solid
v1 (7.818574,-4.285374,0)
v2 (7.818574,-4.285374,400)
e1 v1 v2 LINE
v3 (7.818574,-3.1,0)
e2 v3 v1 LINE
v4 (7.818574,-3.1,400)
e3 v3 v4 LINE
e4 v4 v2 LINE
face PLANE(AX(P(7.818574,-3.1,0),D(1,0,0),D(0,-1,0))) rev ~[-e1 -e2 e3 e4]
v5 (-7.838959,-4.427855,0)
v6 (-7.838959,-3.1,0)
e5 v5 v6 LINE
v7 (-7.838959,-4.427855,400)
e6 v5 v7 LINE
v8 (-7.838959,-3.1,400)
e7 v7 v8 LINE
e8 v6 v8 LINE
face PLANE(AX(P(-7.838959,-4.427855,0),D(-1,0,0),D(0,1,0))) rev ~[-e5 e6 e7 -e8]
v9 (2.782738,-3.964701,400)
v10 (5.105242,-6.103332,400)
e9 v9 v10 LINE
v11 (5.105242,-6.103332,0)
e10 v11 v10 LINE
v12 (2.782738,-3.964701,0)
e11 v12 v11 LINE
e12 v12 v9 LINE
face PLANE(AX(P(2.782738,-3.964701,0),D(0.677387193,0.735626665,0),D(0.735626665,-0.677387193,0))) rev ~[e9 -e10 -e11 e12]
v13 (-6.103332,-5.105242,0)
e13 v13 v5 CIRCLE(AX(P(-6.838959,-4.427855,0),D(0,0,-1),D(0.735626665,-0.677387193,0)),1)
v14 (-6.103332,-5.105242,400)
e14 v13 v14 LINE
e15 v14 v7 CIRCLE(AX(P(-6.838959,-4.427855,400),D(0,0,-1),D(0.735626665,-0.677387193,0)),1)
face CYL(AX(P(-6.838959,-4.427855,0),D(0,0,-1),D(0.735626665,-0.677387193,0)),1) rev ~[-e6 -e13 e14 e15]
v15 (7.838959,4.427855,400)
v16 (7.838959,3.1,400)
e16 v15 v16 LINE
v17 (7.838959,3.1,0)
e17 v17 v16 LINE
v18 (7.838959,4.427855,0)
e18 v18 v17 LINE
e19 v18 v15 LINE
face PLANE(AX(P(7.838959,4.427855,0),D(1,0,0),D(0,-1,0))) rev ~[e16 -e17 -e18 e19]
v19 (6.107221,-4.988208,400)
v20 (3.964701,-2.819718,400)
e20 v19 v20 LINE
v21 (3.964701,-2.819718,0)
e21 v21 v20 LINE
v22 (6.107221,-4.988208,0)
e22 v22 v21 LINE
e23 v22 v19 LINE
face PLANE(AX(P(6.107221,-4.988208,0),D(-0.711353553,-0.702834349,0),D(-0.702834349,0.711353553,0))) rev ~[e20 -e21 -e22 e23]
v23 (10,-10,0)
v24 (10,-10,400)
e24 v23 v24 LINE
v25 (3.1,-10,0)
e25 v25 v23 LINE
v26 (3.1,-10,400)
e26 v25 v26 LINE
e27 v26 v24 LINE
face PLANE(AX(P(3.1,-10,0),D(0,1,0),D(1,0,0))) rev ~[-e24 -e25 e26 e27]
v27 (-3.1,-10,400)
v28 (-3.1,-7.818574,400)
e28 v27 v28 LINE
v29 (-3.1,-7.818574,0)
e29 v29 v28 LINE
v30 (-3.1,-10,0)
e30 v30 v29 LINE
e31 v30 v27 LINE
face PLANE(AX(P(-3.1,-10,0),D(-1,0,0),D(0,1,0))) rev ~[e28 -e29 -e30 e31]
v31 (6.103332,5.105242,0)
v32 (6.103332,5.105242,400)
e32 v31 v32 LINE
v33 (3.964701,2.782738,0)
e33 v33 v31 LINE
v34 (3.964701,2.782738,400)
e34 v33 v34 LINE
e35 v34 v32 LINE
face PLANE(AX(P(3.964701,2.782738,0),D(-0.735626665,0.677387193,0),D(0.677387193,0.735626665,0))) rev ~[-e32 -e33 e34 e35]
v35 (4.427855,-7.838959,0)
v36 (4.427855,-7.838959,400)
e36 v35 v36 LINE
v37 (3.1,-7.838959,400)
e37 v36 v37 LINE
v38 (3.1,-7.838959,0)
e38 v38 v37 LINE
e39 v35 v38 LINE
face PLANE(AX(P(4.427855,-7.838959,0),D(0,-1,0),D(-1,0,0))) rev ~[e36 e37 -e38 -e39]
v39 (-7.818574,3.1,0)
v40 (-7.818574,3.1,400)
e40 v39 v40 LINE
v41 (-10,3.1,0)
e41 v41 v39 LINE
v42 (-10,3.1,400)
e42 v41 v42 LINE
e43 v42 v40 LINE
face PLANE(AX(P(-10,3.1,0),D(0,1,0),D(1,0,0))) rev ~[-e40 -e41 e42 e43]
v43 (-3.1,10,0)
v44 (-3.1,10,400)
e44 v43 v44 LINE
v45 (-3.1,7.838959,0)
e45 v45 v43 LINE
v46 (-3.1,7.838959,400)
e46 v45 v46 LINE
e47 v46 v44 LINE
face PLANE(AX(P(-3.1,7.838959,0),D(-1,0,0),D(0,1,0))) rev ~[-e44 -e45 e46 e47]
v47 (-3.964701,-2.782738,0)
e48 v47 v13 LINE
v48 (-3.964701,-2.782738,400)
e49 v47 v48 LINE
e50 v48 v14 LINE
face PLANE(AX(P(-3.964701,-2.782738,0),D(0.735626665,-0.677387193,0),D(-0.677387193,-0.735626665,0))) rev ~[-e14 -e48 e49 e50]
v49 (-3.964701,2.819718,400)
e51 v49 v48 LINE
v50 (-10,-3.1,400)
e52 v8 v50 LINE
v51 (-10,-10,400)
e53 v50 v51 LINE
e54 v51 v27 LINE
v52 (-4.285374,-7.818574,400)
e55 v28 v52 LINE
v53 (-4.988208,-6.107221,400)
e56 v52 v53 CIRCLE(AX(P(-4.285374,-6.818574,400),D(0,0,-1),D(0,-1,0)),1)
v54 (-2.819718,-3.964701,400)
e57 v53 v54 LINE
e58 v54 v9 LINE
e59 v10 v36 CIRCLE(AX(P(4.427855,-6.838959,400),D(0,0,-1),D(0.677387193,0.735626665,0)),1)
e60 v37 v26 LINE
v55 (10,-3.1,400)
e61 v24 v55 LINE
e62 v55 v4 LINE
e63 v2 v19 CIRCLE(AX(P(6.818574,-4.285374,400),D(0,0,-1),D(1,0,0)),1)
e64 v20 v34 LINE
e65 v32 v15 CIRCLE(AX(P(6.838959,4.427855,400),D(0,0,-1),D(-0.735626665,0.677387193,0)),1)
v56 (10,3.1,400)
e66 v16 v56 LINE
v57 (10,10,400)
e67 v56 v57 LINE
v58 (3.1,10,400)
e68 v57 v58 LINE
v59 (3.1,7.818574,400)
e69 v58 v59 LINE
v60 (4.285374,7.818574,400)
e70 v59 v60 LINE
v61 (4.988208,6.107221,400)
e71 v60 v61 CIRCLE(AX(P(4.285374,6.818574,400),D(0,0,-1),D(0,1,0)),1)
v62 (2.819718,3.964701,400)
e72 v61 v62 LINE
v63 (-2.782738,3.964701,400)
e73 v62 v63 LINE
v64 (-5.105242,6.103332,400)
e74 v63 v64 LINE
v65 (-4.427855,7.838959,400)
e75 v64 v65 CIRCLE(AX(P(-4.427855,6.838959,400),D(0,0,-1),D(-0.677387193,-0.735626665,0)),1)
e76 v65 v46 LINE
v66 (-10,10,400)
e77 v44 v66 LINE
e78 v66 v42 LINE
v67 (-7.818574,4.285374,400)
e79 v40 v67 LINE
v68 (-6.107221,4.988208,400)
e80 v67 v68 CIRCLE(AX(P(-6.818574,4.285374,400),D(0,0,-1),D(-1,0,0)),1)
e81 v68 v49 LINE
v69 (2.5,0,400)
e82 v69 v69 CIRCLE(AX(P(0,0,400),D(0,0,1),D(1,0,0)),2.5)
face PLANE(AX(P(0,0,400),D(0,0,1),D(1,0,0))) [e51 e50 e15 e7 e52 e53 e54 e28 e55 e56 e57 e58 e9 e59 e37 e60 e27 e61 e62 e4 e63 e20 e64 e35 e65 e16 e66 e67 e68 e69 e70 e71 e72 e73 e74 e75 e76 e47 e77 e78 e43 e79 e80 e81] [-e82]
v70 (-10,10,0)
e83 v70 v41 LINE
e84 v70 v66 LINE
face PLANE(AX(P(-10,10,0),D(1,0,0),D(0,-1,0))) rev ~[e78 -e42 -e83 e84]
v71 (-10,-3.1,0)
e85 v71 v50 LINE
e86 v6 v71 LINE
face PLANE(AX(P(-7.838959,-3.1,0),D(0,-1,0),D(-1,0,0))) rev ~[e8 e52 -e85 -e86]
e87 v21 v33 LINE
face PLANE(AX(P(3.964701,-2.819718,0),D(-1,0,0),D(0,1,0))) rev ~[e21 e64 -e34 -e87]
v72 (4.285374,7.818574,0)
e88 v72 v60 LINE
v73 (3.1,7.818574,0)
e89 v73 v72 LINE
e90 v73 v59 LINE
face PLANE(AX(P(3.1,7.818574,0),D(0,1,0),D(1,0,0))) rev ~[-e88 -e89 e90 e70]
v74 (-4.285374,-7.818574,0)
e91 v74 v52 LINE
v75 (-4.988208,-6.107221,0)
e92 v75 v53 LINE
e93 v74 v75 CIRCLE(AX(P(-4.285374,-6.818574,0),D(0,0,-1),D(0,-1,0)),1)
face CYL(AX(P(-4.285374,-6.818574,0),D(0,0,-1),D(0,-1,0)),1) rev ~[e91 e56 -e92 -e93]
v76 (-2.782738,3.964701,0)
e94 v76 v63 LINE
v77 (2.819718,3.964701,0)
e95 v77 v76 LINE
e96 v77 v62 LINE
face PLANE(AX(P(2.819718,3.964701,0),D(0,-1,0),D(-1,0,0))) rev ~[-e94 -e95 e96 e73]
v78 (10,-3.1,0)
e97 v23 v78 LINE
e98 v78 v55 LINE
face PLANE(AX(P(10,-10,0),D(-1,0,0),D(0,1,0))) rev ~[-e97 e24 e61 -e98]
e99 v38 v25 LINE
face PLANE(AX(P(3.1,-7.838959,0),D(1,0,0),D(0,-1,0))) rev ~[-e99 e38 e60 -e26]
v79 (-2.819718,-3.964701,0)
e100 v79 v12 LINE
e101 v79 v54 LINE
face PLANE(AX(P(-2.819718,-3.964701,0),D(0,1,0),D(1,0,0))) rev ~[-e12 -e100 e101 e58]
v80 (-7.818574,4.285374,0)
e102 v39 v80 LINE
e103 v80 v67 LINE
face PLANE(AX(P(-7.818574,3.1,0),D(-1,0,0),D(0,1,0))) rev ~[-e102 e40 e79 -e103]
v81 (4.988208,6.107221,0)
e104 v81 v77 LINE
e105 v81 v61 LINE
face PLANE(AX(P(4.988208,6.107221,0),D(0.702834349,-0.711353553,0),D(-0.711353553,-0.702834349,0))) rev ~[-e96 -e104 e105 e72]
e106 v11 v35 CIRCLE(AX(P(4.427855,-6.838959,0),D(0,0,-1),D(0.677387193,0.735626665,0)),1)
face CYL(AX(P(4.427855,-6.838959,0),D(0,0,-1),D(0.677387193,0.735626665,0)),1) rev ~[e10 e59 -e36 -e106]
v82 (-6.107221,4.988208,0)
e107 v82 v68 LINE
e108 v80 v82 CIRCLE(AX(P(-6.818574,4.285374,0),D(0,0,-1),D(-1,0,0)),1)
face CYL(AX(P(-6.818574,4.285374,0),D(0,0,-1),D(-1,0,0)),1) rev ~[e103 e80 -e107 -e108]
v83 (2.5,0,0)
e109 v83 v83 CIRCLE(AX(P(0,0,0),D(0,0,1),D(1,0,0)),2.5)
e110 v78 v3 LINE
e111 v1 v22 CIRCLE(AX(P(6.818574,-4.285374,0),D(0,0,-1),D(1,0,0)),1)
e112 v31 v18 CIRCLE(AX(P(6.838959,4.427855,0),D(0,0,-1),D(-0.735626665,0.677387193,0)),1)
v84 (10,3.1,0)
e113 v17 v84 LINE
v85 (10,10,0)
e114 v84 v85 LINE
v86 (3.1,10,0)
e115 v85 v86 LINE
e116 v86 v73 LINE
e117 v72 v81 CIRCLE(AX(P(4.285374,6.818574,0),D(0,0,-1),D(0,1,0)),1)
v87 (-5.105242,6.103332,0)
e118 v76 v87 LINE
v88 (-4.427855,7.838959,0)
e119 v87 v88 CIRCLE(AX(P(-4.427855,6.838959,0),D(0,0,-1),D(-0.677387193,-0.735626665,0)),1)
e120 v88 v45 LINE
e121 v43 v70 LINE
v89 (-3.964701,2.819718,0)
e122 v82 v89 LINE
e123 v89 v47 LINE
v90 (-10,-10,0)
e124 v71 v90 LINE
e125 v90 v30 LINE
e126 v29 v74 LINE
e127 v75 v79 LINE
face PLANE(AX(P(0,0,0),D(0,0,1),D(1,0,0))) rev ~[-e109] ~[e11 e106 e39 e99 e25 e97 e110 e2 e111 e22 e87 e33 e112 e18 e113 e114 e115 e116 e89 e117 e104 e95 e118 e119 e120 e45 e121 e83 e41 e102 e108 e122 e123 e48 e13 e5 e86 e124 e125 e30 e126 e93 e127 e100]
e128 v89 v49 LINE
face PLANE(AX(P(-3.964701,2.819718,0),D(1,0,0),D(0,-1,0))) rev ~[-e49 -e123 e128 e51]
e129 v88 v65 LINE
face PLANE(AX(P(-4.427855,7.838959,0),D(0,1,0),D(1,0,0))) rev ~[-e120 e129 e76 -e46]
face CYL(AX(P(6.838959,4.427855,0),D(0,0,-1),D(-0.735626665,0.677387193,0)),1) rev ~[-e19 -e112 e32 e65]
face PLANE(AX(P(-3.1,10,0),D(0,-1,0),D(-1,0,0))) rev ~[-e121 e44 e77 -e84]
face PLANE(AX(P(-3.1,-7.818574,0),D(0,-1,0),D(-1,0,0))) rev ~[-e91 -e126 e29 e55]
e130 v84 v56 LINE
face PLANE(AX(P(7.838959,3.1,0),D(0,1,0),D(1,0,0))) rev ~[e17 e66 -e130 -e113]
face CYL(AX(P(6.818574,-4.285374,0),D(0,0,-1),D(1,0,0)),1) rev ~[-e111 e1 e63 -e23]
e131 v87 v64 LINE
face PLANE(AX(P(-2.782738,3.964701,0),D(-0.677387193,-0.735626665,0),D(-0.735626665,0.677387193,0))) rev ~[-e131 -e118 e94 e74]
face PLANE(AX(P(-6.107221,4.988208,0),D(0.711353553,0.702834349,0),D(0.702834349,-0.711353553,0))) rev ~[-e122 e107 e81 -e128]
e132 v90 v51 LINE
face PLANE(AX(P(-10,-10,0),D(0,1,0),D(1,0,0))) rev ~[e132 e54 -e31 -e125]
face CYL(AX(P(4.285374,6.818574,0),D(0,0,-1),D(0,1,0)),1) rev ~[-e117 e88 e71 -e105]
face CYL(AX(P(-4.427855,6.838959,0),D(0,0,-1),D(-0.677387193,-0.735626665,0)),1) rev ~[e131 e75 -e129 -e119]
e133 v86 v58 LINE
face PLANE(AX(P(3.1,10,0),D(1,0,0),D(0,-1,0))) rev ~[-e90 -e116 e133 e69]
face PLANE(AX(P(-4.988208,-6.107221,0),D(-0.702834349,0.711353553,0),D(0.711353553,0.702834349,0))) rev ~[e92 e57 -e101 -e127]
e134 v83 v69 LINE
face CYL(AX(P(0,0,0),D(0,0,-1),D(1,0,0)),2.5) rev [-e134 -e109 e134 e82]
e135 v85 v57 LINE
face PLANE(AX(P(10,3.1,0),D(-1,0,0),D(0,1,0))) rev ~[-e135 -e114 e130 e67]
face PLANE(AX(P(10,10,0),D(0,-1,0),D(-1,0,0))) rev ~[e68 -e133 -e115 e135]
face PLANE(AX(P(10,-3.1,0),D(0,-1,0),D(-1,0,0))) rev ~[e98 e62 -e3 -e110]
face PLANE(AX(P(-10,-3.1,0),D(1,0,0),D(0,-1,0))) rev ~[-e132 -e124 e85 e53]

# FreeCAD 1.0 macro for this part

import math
import FreeCAD as App
import Part
import Sketcher
Q = App.Units.Quantity

doc = App.newDocument("Part")
body = doc.addObject("PartDesign::Body", "Body")

sketch1 = body.newObject("Sketcher::SketchObject", "Sketch")
sketch1.AttachmentSupport = (doc.getObject("XY_Plane"), [""])
sketch1.MapMode = "FlatFace"
sketch1.addGeometry([
    Part.LineSegment(App.Vector(-10, -10, 0), App.Vector(-3.1, -10, 0)),
    Part.LineSegment(App.Vector(-3.1, -10, 0), App.Vector(-3.1, -7.8, 0)),
    Part.LineSegment(App.Vector(-3.1, -7.8, 0), App.Vector(-4.3, -7.8, 0)),
    Part.ArcOfCircle(Part.Circle(App.Vector(-4.3, -6.8, 0), App.Vector(0, 0, 1), 1), math.radians(135), math.radians(270)),
    Part.LineSegment(App.Vector(-5, -6.1, 0), App.Vector(-2.8, -4, 0)),
    Part.LineSegment(App.Vector(-2.8, -4, 0), App.Vector(2.8, -4, 0)),
    Part.LineSegment(App.Vector(2.8, -4, 0), App.Vector(5.1, -6.1, 0)),
    Part.ArcOfCircle(Part.Circle(App.Vector(4.4, -6.8, 0), App.Vector(0, 0, 1), 1), math.radians(-90), math.radians(47)),
    Part.LineSegment(App.Vector(4.4, -7.8, 0), App.Vector(3.1, -7.8, 0)),
    Part.LineSegment(App.Vector(3.1, -7.8, 0), App.Vector(3.1, -10, 0)),
    Part.LineSegment(App.Vector(3.1, -10, 0), App.Vector(10, -10, 0)),
    Part.LineSegment(App.Vector(10, -10, 0), App.Vector(10, -3.1, 0)),
    Part.LineSegment(App.Vector(10, -3.1, 0), App.Vector(7.8, -3.1, 0)),
    Part.LineSegment(App.Vector(7.8, -3.1, 0), App.Vector(7.8, -4.3, 0)),
    Part.ArcOfCircle(Part.Circle(App.Vector(6.8, -4.3, 0), App.Vector(0, 0, 1), 1), math.radians(-135), math.radians(0)),
    Part.LineSegment(App.Vector(6.1, -5, 0), App.Vector(4, -2.8, 0)),
    Part.LineSegment(App.Vector(4, -2.8, 0), App.Vector(4, 2.8, 0)),
    Part.LineSegment(App.Vector(4, 2.8, 0), App.Vector(6.1, 5.1, 0)),
    Part.ArcOfCircle(Part.Circle(App.Vector(6.8, 4.4, 0), App.Vector(0, 0, 1), 1), math.radians(0), math.radians(137)),
    Part.LineSegment(App.Vector(7.8, 4.4, 0), App.Vector(7.8, 3.1, 0)),
    Part.LineSegment(App.Vector(7.8, 3.1, 0), App.Vector(10, 3.1, 0)),
    Part.LineSegment(App.Vector(10, 3.1, 0), App.Vector(10, 10, 0)),
    Part.LineSegment(App.Vector(10, 10, 0), App.Vector(3.1, 10, 0)),
    Part.LineSegment(App.Vector(3.1, 10, 0), App.Vector(3.1, 7.8, 0)),
    Part.LineSegment(App.Vector(3.1, 7.8, 0), App.Vector(4.3, 7.8, 0)),
    Part.ArcOfCircle(Part.Circle(App.Vector(4.3, 6.8, 0), App.Vector(0, 0, 1), 1), math.radians(-45), math.radians(90)),
    Part.LineSegment(App.Vector(5, 6.1, 0), App.Vector(2.8, 4, 0)),
    Part.LineSegment(App.Vector(2.8, 4, 0), App.Vector(-2.8, 4, 0)),
    Part.LineSegment(App.Vector(-2.8, 4, 0), App.Vector(-5.1, 6.1, 0)),
    Part.ArcOfCircle(Part.Circle(App.Vector(-4.4, 6.8, 0), App.Vector(0, 0, 1), 1), math.radians(90), math.radians(227)),
    Part.LineSegment(App.Vector(-4.4, 7.8, 0), App.Vector(-3.1, 7.8, 0)),
    Part.LineSegment(App.Vector(-3.1, 7.8, 0), App.Vector(-3.1, 10, 0)),
    Part.LineSegment(App.Vector(-3.1, 10, 0), App.Vector(-10, 10, 0)),
    Part.LineSegment(App.Vector(-10, 10, 0), App.Vector(-10, 3.1, 0)),
    Part.LineSegment(App.Vector(-10, 3.1, 0), App.Vector(-7.8, 3.1, 0)),
    Part.LineSegment(App.Vector(-7.8, 3.1, 0), App.Vector(-7.8, 4.3, 0)),
    Part.ArcOfCircle(Part.Circle(App.Vector(-6.8, 4.3, 0), App.Vector(0, 0, 1), 1), math.radians(45), math.radians(180)),
    Part.LineSegment(App.Vector(-6.1, 5, 0), App.Vector(-4, 2.8, 0)),
    Part.LineSegment(App.Vector(-4, 2.8, 0), App.Vector(-4, -2.8, 0)),
    Part.LineSegment(App.Vector(-4, -2.8, 0), App.Vector(-6.1, -5.1, 0)),
    Part.ArcOfCircle(Part.Circle(App.Vector(-6.8, -4.4, 0), App.Vector(0, 0, 1), 1), math.radians(-180), math.radians(-43)),
    Part.LineSegment(App.Vector(-7.8, -4.4, 0), App.Vector(-7.8, -3.1, 0)),
    Part.LineSegment(App.Vector(-7.8, -3.1, 0), App.Vector(-10, -3.1, 0)),
    Part.LineSegment(App.Vector(-10, -3.1, 0), App.Vector(-10, -10, 0)),
    Part.Circle(App.Vector(0, 0, 0), App.Vector(0, 0, 1), 2.5),
], False)
sketch1.addConstraint([
    Sketcher.Constraint("Coincident", 0, 2, 1, 1),
    Sketcher.Constraint("Coincident", 1, 2, 2, 1),
    Sketcher.Constraint("Tangent", 2, 2, 3, 2),
    Sketcher.Constraint("Tangent", 3, 1, 4, 1),
    Sketcher.Constraint("Coincident", 4, 2, 5, 1),
    Sketcher.Constraint("Coincident", 5, 2, 6, 1),
    Sketcher.Constraint("Tangent", 6, 2, 7, 2),
    Sketcher.Constraint("Tangent", 7, 1, 8, 1),
    Sketcher.Constraint("Coincident", 8, 2, 9, 1),
    Sketcher.Constraint("Coincident", 9, 2, 10, 1),
    Sketcher.Constraint("Coincident", 10, 2, 11, 1),
    Sketcher.Constraint("Coincident", 11, 2, 12, 1),
    Sketcher.Constraint("Coincident", 12, 2, 13, 1),
    Sketcher.Constraint("Tangent", 13, 2, 14, 2),
    Sketcher.Constraint("Tangent", 14, 1, 15, 1),
    Sketcher.Constraint("Coincident", 15, 2, 16, 1),
    Sketcher.Constraint("Coincident", 16, 2, 17, 1),
    Sketcher.Constraint("Tangent", 17, 2, 18, 2),
    Sketcher.Constraint("Tangent", 18, 1, 19, 1),
    Sketcher.Constraint("Coincident", 19, 2, 20, 1),
    Sketcher.Constraint("Coincident", 20, 2, 21, 1),
    Sketcher.Constraint("Coincident", 21, 2, 22, 1),
    Sketcher.Constraint("Coincident", 22, 2, 23, 1),
    Sketcher.Constraint("Coincident", 23, 2, 24, 1),
    Sketcher.Constraint("Tangent", 24, 2, 25, 2),
    Sketcher.Constraint("Tangent", 25, 1, 26, 1),
    Sketcher.Constraint("Coincident", 26, 2, 27, 1),
    Sketcher.Constraint("Coincident", 27, 2, 28, 1),
    Sketcher.Constraint("Tangent", 28, 2, 29, 2),
    Sketcher.Constraint("Tangent", 29, 1, 30, 1),
    Sketcher.Constraint("Coincident", 30, 2, 31, 1),
    Sketcher.Constraint("Coincident", 31, 2, 32, 1),
    Sketcher.Constraint("Coincident", 32, 2, 33, 1),
    Sketcher.Constraint("Coincident", 33, 2, 34, 1),
    Sketcher.Constraint("Coincident", 34, 2, 35, 1),
    Sketcher.Constraint("Tangent", 35, 2, 36, 2),
    Sketcher.Constraint("Tangent", 36, 1, 37, 1),
    Sketcher.Constraint("Coincident", 37, 2, 38, 1),
    Sketcher.Constraint("Coincident", 38, 2, 39, 1),
    Sketcher.Constraint("Tangent", 39, 2, 40, 2),
    Sketcher.Constraint("Tangent", 40, 1, 41, 1),
    Sketcher.Constraint("Coincident", 41, 2, 42, 1),
    Sketcher.Constraint("Coincident", 42, 2, 43, 1),
    Sketcher.Constraint("Coincident", 43, 2, 0, 1),
    Sketcher.Constraint("Horizontal", 0),
    Sketcher.Constraint("Vertical", 1),
    Sketcher.Constraint("Horizontal", 2),
    Sketcher.Constraint("Horizontal", 5),
    Sketcher.Constraint("Horizontal", 8),
    Sketcher.Constraint("Vertical", 9),
    Sketcher.Constraint("Horizontal", 10),
    Sketcher.Constraint("Vertical", 11),
    Sketcher.Constraint("Horizontal", 12),
    Sketcher.Constraint("Vertical", 13),
    Sketcher.Constraint("Vertical", 16),
    Sketcher.Constraint("Vertical", 19),
    Sketcher.Constraint("Horizontal", 20),
    Sketcher.Constraint("Vertical", 21),
    Sketcher.Constraint("Horizontal", 22),
    Sketcher.Constraint("Vertical", 23),
    Sketcher.Constraint("Horizontal", 24),
    Sketcher.Constraint("Horizontal", 27),
    Sketcher.Constraint("Horizontal", 30),
    Sketcher.Constraint("Vertical", 31),
    Sketcher.Constraint("Horizontal", 32),
    Sketcher.Constraint("Vertical", 33),
    Sketcher.Constraint("Horizontal", 34),
    Sketcher.Constraint("Vertical", 35),
    Sketcher.Constraint("Vertical", 38),
    Sketcher.Constraint("Vertical", 41),
    Sketcher.Constraint("Horizontal", 42),
    Sketcher.Constraint("Vertical", 43),
    Sketcher.Constraint("Coincident", 44, 3, -1, 1),
    Sketcher.Constraint("Equal", 3, 7),
    Sketcher.Constraint("Equal", 7, 14),
    Sketcher.Constraint("Equal", 14, 18),
    Sketcher.Constraint("Equal", 18, 25),
    Sketcher.Constraint("Equal", 25, 29),
    Sketcher.Constraint("Equal", 29, 36),
    Sketcher.Constraint("Equal", 36, 40),
    Sketcher.Constraint("Symmetric", 3, 3, 25, 3, -1, 1),
    Sketcher.Constraint("Symmetric", 7, 3, 29, 3, -1, 1),
    Sketcher.Constraint("Symmetric", 14, 3, 36, 3, -1, 1),
    Sketcher.Constraint("Symmetric", 18, 3, 40, 3, -1, 1),
    Sketcher.Constraint("Symmetric", 0, 2, 22, 2, -1, 1),
    Sketcher.Constraint("Symmetric", 4, 2, 26, 2, -1, 1),
    Sketcher.Constraint("Symmetric", 9, 2, 31, 2, -1, 1),
    Sketcher.Constraint("Symmetric", 11, 2, 33, 2, -1, 1),
    Sketcher.Constraint("Symmetric", 15, 2, 37, 2, -1, 1),
    Sketcher.Constraint("Symmetric", 20, 2, 42, 2, -1, 1),
    Sketcher.Constraint("Symmetric", 0, 2, 9, 2, -2),
    Sketcher.Constraint("Symmetric", 20, 2, 33, 2, -2),
    Sketcher.Constraint("Perpendicular", 4, 15),
    Sketcher.Constraint("Perpendicular", 6, 17),
    Sketcher.Constraint("Perpendicular", 17, 28),
    Sketcher.Constraint("Perpendicular", 28, 39),
    Sketcher.Constraint("Equal", 34, 1),
    Sketcher.Constraint("Equal", 42, 9),
    Sketcher.Constraint("Equal", 32, 11),
    Sketcher.Constraint("Equal", 24, 13),
    Sketcher.Constraint("Equal", 27, 16),
    Sketcher.Constraint("Equal", 30, 19),
    Sketcher.Constraint("Equal", 4, 15),
    Sketcher.Constraint("Diameter", 44, Q("5 mm")),
    Sketcher.Constraint("Radius", 3, Q("1 mm")),
    Sketcher.Constraint("DistanceX", 0, 1, 0, 2, Q("6.9 mm")),
    Sketcher.Constraint("DistanceY", 0, 2, -1, 1, Q("10 mm")),
    Sketcher.Constraint("Distance", 4, Q("3.0484 mm")),
    Sketcher.Constraint("DistanceX", 20, 1, 20, 2, Q("2.161041 mm")),
    Sketcher.Constraint("DistanceY", 4, 2, -1, 1, Q("3.964701 mm")),
    Sketcher.Constraint("DistanceY", 3, 3, 14, 3, Q("2.5332 mm")),
    Sketcher.Constraint("DistanceX", 2, 2, 2, 1, Q("1.185374 mm")),
    Sketcher.Constraint("DistanceX", 5, 1, 5, 2, Q("5.602456 mm")),
    Sketcher.Constraint("DistanceX", 8, 2, 8, 1, Q("1.327855 mm")),
])
pad1 = body.newObject("PartDesign::Pad", "Pad")
pad1.Profile = sketch1
pad1.Length = 400

doc.recompute()
